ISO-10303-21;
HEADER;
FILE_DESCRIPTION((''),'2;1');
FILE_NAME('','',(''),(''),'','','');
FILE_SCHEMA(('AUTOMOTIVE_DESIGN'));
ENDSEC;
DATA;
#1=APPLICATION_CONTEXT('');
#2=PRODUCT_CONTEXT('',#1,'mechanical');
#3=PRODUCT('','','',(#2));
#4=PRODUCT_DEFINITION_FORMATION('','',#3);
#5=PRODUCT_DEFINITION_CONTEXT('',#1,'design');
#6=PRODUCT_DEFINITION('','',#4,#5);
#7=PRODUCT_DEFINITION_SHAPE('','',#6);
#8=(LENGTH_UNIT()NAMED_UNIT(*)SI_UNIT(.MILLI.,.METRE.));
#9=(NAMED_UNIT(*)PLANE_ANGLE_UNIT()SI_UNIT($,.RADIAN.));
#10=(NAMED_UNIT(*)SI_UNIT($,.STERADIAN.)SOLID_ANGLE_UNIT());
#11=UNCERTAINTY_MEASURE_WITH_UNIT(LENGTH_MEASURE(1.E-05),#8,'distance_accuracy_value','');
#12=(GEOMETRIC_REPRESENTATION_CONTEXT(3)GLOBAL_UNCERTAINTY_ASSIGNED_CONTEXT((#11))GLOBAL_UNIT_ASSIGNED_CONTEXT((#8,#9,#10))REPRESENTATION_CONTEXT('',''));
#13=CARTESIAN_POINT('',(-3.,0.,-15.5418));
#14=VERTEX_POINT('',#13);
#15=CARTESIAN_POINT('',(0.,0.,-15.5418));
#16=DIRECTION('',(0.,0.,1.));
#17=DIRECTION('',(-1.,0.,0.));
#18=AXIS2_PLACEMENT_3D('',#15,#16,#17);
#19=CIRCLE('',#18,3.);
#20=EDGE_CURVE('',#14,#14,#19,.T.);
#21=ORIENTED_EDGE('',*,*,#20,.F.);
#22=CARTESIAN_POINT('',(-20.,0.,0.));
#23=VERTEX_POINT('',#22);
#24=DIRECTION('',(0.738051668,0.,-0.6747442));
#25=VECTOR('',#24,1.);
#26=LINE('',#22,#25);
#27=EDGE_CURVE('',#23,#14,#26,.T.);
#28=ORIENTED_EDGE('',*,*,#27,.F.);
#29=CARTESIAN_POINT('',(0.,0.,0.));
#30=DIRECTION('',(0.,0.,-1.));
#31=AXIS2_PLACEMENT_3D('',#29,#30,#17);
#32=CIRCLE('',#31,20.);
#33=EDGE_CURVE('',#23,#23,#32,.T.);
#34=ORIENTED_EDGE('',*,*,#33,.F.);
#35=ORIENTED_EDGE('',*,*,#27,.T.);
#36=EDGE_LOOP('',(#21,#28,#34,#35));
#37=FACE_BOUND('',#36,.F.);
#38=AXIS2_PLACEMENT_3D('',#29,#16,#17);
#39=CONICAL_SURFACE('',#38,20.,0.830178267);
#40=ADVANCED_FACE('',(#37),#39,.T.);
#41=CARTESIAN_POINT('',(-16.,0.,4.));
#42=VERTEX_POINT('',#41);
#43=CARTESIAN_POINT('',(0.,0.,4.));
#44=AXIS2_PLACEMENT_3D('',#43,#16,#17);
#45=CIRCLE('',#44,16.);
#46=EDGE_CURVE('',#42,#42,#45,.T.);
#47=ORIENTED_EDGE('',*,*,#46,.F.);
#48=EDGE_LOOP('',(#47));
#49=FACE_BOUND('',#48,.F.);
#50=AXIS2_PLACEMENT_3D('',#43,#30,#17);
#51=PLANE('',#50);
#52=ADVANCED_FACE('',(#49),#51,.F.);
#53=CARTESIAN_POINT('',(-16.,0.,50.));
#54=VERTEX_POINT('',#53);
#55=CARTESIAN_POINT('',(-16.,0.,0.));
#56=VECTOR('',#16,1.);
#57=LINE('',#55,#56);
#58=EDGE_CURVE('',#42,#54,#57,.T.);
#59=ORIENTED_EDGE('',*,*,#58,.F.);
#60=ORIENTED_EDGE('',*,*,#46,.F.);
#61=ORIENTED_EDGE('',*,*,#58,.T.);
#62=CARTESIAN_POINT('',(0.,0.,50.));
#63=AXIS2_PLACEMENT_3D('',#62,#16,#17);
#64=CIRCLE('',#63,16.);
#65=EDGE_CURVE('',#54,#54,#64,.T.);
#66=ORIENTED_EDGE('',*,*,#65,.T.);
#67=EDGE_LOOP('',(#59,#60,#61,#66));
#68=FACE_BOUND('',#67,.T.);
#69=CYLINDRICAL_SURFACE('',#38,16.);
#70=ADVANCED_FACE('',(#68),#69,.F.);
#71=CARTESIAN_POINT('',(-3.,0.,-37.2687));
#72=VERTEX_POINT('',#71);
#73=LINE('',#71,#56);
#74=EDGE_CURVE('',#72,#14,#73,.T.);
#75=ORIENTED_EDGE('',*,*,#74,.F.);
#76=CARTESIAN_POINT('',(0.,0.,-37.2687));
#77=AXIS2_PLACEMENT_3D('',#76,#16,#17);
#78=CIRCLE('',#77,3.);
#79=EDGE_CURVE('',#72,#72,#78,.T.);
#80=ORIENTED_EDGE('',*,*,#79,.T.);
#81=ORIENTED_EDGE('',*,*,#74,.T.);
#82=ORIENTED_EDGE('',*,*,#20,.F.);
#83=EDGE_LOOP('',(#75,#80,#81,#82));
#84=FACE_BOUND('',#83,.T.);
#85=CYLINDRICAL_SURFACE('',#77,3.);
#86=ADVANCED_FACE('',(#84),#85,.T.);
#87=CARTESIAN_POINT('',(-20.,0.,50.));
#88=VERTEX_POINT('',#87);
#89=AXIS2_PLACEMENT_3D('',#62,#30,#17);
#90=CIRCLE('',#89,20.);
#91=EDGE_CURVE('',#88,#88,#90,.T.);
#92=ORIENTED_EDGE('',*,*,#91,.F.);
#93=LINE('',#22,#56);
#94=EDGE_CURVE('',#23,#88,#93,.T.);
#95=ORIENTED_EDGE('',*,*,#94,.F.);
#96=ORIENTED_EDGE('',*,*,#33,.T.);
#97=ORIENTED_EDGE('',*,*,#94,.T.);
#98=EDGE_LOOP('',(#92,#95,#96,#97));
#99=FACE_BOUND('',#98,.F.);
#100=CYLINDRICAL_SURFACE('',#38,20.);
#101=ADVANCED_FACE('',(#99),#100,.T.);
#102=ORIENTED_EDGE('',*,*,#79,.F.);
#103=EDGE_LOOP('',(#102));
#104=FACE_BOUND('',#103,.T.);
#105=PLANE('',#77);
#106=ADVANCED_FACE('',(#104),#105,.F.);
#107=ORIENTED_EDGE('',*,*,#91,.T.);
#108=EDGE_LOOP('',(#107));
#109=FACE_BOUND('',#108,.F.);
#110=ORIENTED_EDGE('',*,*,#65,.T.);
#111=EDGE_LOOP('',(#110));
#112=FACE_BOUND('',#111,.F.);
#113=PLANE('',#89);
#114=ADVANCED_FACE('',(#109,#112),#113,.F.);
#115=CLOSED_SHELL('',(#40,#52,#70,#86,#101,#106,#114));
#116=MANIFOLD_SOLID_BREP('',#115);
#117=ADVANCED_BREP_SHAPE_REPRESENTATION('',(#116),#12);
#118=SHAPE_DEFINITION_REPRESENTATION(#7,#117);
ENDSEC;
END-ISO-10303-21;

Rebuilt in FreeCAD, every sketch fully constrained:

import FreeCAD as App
import Part
import Sketcher


def faces_at(feature, points):
    """Names of the faces that lie closest to the given points."""
    faces = feature.Shape.Faces
    near = lambda p: min(range(len(faces)), key=lambda i: faces[i].distToShape(Part.Vertex(*p))[0])
    return sorted({f"Face{near(p) + 1}" for p in points})

doc = App.newDocument("Part")
params = doc.addObject("Spreadsheet::Sheet", "Params")
for row, (alias, value) in enumerate([
    ("sketch1_width", "20 mm"),
    ("sketch1_height", "50 mm"),
    ("revolution_angle", "360 deg"),
    ("thickness_wall", "4 mm"),
    ("sketch2_width", "20 mm"),
    ("sketch2_width2", "3 mm"),
    ("revolution2_angle", "360 deg"),
], start=1):
    params.set(f"A{row}", alias)
    params.set(f"B{row}", "=" + value)
    params.setAlias(f"B{row}", alias)

body = doc.addObject("PartDesign::Body", "Body")

# Sketch on XZ plane
sketch1 = body.newObject("Sketcher::SketchObject", "Sketch")
sketch1.AttachmentSupport = (doc.getObject("XZ_Plane"), [""])
sketch1.MapMode = "FlatFace"
sketch1.addGeometry(Part.LineSegment(App.Vector(0, 0, 0), App.Vector(-20, 0, 0)), False)
sketch1.addGeometry(Part.LineSegment(App.Vector(-20, 0, 0), App.Vector(-20, 50, 0)), False)
sketch1.addGeometry(Part.LineSegment(App.Vector(-20, 50, 0), App.Vector(0, 50, 0)), False)
sketch1.addGeometry(Part.LineSegment(App.Vector(0, 50, 0), App.Vector(0, 0, 0)), False)
sketch1.addConstraint(Sketcher.Constraint("Coincident", 0, 2, 1, 1))
sketch1.addConstraint(Sketcher.Constraint("Coincident", 1, 2, 2, 1))
sketch1.addConstraint(Sketcher.Constraint("Coincident", 2, 2, 3, 1))
sketch1.addConstraint(Sketcher.Constraint("Coincident", 3, 2, 0, 1))
sketch1.addConstraint(Sketcher.Constraint("Horizontal", 0))
sketch1.addConstraint(Sketcher.Constraint("Vertical", 1))
sketch1.addConstraint(Sketcher.Constraint("Horizontal", 2))
sketch1.addConstraint(Sketcher.Constraint("Vertical", 3))
sketch1.addConstraint(Sketcher.Constraint("Coincident", 3, 2, -1, 1))
sketch1.addConstraint(Sketcher.Constraint("DistanceX", 0, 2, 0, 1, 20.0))
sketch1.addConstraint(Sketcher.Constraint("DistanceY", 1, 1, 1, 2, 50.0))
sketch1.setExpression("Constraints[9]", "Params.sketch1_width")
sketch1.setExpression("Constraints[10]", "Params.sketch1_height")
revolution = body.newObject("PartDesign::Revolution", "Revolution")
revolution.Profile = sketch1
revolution.ReferenceAxis = (sketch1, ["V_Axis"])
revolution.setExpression("Angle", "Params.revolution_angle")
doc.recompute()

thickness = body.newObject("PartDesign::Thickness", "Thickness")
thickness.Base = (revolution, faces_at(revolution, [(-2.364, 6.233, 50)]))
thickness.setExpression("Value", "Params.thickness_wall")
thickness.Reversed = True
thickness.Join = "Intersection"

# Sketch on XZ plane
sketch2 = body.newObject("Sketcher::SketchObject", "Sketch001")
sketch2.AttachmentSupport = (doc.getObject("XZ_Plane"), [""])
sketch2.MapMode = "FlatFace"
sketch2.addGeometry(Part.LineSegment(App.Vector(-20, 0, 0), App.Vector(0, 0, 0)), False)
sketch2.addGeometry(Part.LineSegment(App.Vector(0, 0, 0), App.Vector(0, -37.3, 0)), False)
sketch2.addGeometry(Part.LineSegment(App.Vector(0, -37.3, 0), App.Vector(-3, -37.3, 0)), False)
sketch2.addGeometry(Part.LineSegment(App.Vector(-3, -37.3, 0), App.Vector(-3, -15.5, 0)), False)
sketch2.addGeometry(Part.LineSegment(App.Vector(-3, -15.5, 0), App.Vector(-20, 0, 0)), False)
sketch2.addConstraint(Sketcher.Constraint("Coincident", 0, 2, 1, 1))
sketch2.addConstraint(Sketcher.Constraint("Coincident", 1, 2, 2, 1))
sketch2.addConstraint(Sketcher.Constraint("Coincident", 2, 2, 3, 1))
sketch2.addConstraint(Sketcher.Constraint("Coincident", 3, 2, 4, 1))
sketch2.addConstraint(Sketcher.Constraint("Coincident", 4, 2, 0, 1))
sketch2.addConstraint(Sketcher.Constraint("Horizontal", 0))
sketch2.addConstraint(Sketcher.Constraint("Vertical", 1))
sketch2.addConstraint(Sketcher.Constraint("Horizontal", 2))
sketch2.addConstraint(Sketcher.Constraint("Vertical", 3))
sketch2.addConstraint(Sketcher.Constraint("Coincident", 0, 2, -1, 1))
sketch2.addConstraint(Sketcher.Constraint("DistanceX", 0, 1, 0, 2, 20.0))
sketch2.addConstraint(Sketcher.Constraint("DistanceX", 2, 2, 2, 1, 3.0))
sketch2.addConstraint(Sketcher.Constraint("DistanceY", 3, 1, 3, 2, 21.727))
sketch2.addConstraint(Sketcher.Constraint("DistanceY", 1, 2, 1, 1, 37.2687))
sketch2.setExpression("Constraints[10]", "Params.sketch2_width")
sketch2.setExpression("Constraints[11]", "Params.sketch2_width2")
revolution2 = body.newObject("PartDesign::Revolution", "Revolution001")
revolution2.Profile = sketch2
revolution2.ReferenceAxis = (sketch2, ["V_Axis"])
revolution2.setExpression("Angle", "Params.revolution2_angle")

doc.recompute()
